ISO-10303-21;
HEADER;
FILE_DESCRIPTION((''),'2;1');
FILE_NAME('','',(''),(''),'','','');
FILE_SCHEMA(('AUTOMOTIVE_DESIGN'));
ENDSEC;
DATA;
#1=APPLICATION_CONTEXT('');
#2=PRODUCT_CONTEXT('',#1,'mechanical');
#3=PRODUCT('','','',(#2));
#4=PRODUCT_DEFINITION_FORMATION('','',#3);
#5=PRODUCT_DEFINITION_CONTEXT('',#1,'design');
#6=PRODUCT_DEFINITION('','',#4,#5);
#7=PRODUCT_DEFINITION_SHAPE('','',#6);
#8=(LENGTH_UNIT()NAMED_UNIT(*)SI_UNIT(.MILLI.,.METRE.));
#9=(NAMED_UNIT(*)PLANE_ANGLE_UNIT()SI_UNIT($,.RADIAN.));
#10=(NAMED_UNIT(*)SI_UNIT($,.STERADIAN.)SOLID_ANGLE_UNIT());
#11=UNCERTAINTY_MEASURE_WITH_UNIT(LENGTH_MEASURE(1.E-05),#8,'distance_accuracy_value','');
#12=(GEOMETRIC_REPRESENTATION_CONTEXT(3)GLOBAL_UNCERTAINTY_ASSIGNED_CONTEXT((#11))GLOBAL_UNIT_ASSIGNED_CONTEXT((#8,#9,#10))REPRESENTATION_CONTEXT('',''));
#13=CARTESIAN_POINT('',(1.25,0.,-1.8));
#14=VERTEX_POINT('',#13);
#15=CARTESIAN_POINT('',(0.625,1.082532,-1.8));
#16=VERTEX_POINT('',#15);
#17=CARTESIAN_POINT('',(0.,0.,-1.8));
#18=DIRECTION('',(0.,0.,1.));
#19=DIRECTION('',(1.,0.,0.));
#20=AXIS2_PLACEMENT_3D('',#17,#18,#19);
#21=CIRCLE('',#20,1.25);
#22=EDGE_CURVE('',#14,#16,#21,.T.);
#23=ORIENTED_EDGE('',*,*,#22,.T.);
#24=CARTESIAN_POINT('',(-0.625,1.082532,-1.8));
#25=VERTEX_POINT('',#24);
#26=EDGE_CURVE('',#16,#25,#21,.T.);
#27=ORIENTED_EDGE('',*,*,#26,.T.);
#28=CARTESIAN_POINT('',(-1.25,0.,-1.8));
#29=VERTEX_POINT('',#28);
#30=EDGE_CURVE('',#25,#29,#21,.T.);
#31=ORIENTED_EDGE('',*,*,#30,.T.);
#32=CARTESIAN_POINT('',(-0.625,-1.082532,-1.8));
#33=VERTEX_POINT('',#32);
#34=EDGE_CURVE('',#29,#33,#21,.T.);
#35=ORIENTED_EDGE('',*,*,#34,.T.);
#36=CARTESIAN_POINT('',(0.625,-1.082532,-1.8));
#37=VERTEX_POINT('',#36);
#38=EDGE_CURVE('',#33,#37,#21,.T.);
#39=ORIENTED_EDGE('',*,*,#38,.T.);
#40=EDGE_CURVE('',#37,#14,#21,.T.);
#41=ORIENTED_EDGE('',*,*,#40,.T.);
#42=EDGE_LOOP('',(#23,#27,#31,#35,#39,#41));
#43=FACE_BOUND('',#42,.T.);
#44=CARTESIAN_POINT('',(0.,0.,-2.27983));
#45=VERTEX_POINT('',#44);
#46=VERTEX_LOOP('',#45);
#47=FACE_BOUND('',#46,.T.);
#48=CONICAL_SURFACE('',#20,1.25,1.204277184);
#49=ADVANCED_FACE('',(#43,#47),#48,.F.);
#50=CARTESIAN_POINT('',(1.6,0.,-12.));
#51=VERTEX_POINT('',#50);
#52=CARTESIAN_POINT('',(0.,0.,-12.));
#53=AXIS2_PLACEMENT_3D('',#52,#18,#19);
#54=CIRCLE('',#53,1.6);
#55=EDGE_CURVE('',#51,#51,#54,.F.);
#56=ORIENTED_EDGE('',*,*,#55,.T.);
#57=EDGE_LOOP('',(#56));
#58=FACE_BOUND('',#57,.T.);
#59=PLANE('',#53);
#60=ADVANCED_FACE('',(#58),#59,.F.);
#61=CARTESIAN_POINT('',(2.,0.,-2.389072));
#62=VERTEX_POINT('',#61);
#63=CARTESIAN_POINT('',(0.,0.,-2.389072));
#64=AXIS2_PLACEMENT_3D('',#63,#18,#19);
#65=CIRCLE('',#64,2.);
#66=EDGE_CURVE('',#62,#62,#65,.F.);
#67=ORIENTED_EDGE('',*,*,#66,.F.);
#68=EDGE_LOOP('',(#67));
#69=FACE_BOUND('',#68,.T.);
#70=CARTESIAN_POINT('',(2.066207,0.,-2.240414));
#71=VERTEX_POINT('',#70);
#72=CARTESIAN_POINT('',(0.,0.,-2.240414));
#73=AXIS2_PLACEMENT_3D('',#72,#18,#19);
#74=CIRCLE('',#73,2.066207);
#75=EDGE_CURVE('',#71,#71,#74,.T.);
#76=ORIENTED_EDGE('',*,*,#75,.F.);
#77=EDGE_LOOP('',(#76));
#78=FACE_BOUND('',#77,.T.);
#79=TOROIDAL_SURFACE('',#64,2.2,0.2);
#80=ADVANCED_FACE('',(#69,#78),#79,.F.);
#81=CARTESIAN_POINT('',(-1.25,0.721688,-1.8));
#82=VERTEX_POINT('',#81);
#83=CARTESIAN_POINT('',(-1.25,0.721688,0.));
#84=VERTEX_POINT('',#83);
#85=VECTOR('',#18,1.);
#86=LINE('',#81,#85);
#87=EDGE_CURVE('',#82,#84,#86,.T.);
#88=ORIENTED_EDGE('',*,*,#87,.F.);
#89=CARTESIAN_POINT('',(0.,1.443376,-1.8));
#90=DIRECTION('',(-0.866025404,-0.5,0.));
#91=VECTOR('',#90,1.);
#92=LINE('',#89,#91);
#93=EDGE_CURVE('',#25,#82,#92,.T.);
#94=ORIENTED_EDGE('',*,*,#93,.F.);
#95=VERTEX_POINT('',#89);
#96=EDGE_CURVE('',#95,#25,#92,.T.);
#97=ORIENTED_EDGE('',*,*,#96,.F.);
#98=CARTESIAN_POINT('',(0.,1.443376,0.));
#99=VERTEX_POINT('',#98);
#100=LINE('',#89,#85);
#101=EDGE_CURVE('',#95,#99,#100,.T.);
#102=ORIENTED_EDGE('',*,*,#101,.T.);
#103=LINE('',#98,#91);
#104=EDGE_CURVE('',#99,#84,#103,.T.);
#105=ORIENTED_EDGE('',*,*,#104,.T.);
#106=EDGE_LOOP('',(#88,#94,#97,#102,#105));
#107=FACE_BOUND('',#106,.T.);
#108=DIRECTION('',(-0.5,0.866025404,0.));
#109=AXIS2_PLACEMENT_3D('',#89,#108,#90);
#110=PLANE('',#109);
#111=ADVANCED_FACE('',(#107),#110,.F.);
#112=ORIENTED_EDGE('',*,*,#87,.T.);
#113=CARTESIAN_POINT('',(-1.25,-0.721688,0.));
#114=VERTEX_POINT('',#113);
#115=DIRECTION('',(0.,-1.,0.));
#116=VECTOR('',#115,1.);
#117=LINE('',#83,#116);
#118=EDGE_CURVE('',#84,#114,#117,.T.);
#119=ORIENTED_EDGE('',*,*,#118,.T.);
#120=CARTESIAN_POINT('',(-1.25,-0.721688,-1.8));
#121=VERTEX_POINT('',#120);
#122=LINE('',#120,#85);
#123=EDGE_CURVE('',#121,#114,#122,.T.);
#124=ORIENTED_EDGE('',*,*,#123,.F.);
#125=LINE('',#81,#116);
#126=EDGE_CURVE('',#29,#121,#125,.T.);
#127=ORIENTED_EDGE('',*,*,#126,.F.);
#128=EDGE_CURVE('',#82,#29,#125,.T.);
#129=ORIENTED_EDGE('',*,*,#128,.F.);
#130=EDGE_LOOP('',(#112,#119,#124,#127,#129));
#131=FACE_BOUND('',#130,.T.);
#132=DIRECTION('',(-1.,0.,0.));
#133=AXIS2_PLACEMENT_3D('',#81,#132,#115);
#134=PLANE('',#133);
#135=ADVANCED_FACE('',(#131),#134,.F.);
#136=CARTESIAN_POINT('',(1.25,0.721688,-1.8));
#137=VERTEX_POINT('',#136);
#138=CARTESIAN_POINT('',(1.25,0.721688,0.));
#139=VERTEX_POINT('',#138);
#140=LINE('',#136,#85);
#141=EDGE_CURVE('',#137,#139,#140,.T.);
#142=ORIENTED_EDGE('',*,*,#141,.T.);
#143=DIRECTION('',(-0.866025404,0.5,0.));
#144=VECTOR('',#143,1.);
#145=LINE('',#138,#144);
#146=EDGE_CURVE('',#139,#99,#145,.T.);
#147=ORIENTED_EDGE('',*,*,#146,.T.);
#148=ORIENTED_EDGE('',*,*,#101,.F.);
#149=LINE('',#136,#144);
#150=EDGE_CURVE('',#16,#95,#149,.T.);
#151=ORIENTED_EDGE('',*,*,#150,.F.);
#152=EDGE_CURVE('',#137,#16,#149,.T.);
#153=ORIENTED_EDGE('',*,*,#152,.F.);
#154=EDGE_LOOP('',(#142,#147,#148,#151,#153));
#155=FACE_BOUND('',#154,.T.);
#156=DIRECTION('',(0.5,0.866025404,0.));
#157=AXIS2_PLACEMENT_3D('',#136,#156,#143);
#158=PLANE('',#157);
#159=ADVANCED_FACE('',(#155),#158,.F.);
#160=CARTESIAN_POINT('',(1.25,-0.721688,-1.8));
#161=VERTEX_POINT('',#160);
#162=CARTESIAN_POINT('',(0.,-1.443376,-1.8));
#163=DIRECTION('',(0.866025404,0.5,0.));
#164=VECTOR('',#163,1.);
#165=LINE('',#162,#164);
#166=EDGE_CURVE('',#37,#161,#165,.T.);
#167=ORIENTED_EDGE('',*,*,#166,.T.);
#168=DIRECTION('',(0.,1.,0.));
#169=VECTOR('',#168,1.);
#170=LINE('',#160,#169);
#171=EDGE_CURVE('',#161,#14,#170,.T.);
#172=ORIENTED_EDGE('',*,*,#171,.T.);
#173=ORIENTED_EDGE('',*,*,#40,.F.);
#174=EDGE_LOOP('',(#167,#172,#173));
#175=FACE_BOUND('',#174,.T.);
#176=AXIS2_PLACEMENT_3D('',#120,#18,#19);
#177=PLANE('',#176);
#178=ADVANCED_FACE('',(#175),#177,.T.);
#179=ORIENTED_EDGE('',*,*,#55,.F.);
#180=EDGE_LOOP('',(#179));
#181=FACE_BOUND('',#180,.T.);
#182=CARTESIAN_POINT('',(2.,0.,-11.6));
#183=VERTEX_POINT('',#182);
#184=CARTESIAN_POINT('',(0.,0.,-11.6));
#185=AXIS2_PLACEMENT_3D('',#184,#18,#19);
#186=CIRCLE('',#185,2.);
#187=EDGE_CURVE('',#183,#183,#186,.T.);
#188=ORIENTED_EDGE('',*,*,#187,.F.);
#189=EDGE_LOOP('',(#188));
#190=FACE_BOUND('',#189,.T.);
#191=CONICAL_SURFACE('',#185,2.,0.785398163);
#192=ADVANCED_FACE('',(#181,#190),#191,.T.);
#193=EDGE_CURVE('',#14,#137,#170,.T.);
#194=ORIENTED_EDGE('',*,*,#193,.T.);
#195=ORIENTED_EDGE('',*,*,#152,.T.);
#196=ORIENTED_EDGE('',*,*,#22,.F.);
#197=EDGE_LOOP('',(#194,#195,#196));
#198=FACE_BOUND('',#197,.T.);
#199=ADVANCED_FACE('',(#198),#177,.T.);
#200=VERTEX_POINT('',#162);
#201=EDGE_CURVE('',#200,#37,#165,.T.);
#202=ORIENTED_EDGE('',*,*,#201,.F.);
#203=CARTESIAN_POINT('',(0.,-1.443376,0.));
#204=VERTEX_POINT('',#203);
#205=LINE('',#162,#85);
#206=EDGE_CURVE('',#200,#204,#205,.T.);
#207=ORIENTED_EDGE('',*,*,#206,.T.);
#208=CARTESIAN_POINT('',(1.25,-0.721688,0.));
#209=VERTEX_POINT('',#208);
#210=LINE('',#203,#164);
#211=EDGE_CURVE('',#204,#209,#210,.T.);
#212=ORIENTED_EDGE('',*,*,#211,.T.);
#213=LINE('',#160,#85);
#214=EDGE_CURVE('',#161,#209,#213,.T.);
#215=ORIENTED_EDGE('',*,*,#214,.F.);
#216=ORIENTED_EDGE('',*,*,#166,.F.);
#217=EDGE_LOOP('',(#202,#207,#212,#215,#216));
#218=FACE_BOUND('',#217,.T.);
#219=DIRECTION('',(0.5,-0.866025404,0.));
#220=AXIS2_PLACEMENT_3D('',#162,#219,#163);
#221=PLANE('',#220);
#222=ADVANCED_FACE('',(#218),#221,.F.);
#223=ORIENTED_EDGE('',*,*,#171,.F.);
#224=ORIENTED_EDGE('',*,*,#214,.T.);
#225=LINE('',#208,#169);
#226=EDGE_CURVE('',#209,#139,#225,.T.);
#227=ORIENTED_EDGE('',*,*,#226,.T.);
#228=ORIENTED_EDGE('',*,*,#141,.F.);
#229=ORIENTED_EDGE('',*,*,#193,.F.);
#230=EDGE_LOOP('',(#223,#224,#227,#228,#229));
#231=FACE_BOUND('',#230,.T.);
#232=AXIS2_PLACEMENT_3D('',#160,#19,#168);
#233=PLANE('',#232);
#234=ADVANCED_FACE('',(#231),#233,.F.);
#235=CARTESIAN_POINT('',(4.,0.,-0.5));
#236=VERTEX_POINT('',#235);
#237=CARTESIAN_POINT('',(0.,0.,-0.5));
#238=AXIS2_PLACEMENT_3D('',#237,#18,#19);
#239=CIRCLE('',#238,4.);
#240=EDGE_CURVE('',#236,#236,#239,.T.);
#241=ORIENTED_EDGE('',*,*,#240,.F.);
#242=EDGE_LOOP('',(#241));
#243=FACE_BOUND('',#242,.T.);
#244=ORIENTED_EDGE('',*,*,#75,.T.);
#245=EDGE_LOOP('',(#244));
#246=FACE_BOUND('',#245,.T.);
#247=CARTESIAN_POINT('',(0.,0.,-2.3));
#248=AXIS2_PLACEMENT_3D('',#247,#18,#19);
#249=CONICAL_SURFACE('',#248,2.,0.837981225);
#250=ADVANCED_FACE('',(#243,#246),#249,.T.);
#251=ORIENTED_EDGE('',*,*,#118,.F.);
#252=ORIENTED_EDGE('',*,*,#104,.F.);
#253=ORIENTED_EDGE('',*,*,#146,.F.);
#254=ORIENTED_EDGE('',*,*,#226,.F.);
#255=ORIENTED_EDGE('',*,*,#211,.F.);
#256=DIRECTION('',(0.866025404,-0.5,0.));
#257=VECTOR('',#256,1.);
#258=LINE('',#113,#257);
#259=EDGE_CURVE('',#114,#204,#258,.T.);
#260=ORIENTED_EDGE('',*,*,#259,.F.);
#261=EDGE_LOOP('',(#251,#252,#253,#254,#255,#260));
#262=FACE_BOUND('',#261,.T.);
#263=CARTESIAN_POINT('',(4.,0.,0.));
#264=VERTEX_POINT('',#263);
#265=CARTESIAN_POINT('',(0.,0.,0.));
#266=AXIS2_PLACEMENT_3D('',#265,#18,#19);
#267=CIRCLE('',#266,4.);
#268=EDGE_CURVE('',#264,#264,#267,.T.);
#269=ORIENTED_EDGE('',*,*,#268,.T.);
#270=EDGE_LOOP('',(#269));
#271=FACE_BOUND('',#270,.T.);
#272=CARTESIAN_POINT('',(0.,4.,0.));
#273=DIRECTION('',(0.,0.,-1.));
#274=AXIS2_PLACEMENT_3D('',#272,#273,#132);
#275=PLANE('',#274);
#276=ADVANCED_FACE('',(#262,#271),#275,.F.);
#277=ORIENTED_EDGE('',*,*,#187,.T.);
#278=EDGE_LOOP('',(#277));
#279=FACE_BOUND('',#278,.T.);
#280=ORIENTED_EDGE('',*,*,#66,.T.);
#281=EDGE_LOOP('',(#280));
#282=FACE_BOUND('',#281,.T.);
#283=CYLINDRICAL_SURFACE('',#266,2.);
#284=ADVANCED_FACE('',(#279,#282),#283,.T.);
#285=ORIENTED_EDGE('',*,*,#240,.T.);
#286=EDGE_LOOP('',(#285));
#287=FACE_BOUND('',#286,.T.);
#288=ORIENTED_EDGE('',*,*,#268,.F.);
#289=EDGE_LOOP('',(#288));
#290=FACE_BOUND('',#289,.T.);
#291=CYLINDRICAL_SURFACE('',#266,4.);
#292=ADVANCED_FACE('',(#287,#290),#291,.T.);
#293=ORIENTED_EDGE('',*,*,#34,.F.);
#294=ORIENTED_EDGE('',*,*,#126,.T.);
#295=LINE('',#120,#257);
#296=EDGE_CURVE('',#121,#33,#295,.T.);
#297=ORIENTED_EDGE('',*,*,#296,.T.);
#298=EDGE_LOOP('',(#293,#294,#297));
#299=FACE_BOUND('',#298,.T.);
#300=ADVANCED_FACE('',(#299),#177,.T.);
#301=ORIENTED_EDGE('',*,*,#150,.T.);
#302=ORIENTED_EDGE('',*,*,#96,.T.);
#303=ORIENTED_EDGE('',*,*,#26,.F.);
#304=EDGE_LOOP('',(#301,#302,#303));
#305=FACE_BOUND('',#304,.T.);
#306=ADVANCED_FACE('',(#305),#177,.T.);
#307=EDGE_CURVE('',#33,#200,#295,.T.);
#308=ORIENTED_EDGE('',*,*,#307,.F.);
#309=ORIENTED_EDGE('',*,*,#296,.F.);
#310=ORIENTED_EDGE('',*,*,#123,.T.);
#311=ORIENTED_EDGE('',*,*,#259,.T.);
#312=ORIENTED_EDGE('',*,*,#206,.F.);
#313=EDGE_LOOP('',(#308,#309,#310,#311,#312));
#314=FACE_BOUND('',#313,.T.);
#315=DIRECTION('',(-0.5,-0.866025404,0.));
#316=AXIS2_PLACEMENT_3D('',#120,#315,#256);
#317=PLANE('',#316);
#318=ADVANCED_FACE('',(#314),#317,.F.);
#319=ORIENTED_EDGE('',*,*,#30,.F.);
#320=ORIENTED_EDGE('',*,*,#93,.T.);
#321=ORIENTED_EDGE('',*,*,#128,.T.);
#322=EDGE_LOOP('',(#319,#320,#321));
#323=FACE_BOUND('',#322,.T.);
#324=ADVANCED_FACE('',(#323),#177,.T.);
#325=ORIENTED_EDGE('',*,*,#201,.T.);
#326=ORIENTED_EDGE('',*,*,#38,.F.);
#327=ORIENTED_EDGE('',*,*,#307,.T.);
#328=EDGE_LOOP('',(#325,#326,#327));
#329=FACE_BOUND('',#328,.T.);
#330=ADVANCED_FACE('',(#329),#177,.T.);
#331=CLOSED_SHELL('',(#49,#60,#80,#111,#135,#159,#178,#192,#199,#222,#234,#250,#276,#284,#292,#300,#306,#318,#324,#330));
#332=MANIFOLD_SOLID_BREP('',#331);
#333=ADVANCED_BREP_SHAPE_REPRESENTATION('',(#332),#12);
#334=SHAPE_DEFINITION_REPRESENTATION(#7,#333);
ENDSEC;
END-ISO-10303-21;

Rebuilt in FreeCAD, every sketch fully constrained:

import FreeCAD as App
import Part
import Sketcher
from FreeCAD import Vector
Q = App.Units.Quantity


def edges_at(feature, points):
    """Names of the edges that pass closest to the given points."""
    edges = feature.Shape.Edges
    near = lambda p: min(range(len(edges)), key=lambda i: edges[i].distToShape(Part.Vertex(*p))[0])
    return sorted({f"Edge{near(p) + 1}" for p in points})


def add_polygon(sketch, points):
    """Adds a closed chain of lines whose ends are joined by coincident constraints."""
    first, n = sketch.GeometryCount, len(points)
    for a, b in zip(points, points[1:] + points[:1]):
        sketch.addGeometry(Part.LineSegment(App.Vector(*a, 0), App.Vector(*b, 0)), False)
    for i in range(n):
        sketch.addConstraint(Sketcher.Constraint("Coincident", first + i, 2, first + (i + 1) % n, 1))

doc = App.newDocument("Part")
body = doc.addObject("PartDesign::Body", "Body")

# Sketch on YZ plane
sketch1 = doc.addObject("Sketcher::SketchObject", "Sketch")
body.addObject(sketch1)
sketch1.AttachmentSupport = (doc.YZ_Plane, [""])
sketch1.MapMode = "FlatFace"
add_polygon(sketch1, [(4, 0), (0, 0), (0, -12), (2, -12), (2, -2.3), (4, -0.5)])  # lines 0-5
sketch1.addConstraint([
    Sketcher.Constraint("Horizontal", 0),
    Sketcher.Constraint("Vertical", 1),
    Sketcher.Constraint("Horizontal", 2),
    Sketcher.Constraint("Vertical", 3),
    Sketcher.Constraint("Vertical", 5),
    Sketcher.Constraint("Coincident", 0, 2, -1, 1),
    Sketcher.Constraint("DistanceX", 0, 2, 0, 1, Q("4 mm")),
    Sketcher.Constraint("DistanceX", 2, 1, 2, 2, Q("2 mm")),
    Sketcher.Constraint("DistanceY", 1, 2, 1, 1, Q("12 mm")),
    Sketcher.Constraint("DistanceY", 3, 1, 3, 2, Q("9.7 mm")),
    Sketcher.Constraint("DistanceY", 5, 1, 5, 2, Q("0.5 mm")),
])
revolution = doc.addObject("PartDesign::Revolution", "Revolution")
body.addObject(revolution)
revolution.Profile = sketch1
revolution.ReferenceAxis = (sketch1, ["V_Axis"])
revolution.Angle = 360
doc.recompute()

chamfer = doc.addObject("PartDesign::Chamfer", "Chamfer")
body.addObject(chamfer)
chamfer.Base = (revolution, edges_at(revolution, [(-2, 0, -12)]))
chamfer.Size = 0.4

# Sketch on XY plane
sketch2 = doc.addObject("Sketcher::SketchObject", "Sketch001")
body.addObject(sketch2)
sketch2.AttachmentSupport = (doc.XY_Plane, [""])
sketch2.MapMode = "FlatFace"
add_polygon(sketch2, [(-1.2, -0.7), (0, -1.4), (1.2, -0.7), (1.2, 0.7), (0, 1.4), (-1.2, 0.7)])  # lines 0-5
sketch2.addConstraint([
    Sketcher.Constraint("Vertical", 2),
    Sketcher.Constraint("Vertical", 5),
    Sketcher.Constraint("Symmetric", 0, 2, 3, 2, -1, 1),
    Sketcher.Constraint("Symmetric", 1, 2, 4, 2, -1, 1),
    Sketcher.Constraint("PointOnObject", 0, 2, -2),
    Sketcher.Constraint("Parallel", 0, 3),
    Sketcher.Constraint("Horizontal", 2, 2, 4, 2),
    Sketcher.Constraint("Angle", 0, Q("-30 deg")),
    Sketcher.Constraint("DistanceX", 4, 2, 2, 2, Q("2.5 mm")),
    Sketcher.Constraint("DistanceY", 2, 1, 2, 2, Q("1.443376 mm")),
])
pocket1 = doc.addObject("PartDesign::Pocket", "Pocket")
body.addObject(pocket1)
pocket1.Profile = sketch2
pocket1.Length = 1.8

# Sketch on YZ plane
sketch3 = doc.addObject("Sketcher::SketchObject", "Sketch002")
body.addObject(sketch3)
sketch3.AttachmentSupport = (doc.YZ_Plane, [""])
sketch3.MapMode = "FlatFace"
add_polygon(sketch3, [(0, -1.8), (-1.25, -1.8), (0, -2.28)])  # lines 0-2
sketch3.addConstraint([
    Sketcher.Constraint("Horizontal", 0),
    Sketcher.Constraint("Vertical", 2),
    Sketcher.Constraint("PointOnObject", 1, 2, -2),
    Sketcher.Constraint("Angle", 1, Q("-21 deg")),
    Sketcher.Constraint("DistanceX", 0, 2, 0, 1, Q("1.25 mm")),
    Sketcher.Constraint("DistanceY", 0, 2, -1, 1, Q("1.8 mm")),
])
groove = doc.addObject("PartDesign::Groove", "Groove")
body.addObject(groove)
groove.Profile = sketch3
groove.ReferenceAxis = (sketch3, ["V_Axis"])
groove.Angle = 360
doc.recompute()

fillet = doc.addObject("PartDesign::Fillet", "Fillet")
body.addObject(fillet)
fillet.Base = (groove, edges_at(groove, [(-2, 0, -2.3)]))
fillet.Radius = 0.2

doc.recompute()
